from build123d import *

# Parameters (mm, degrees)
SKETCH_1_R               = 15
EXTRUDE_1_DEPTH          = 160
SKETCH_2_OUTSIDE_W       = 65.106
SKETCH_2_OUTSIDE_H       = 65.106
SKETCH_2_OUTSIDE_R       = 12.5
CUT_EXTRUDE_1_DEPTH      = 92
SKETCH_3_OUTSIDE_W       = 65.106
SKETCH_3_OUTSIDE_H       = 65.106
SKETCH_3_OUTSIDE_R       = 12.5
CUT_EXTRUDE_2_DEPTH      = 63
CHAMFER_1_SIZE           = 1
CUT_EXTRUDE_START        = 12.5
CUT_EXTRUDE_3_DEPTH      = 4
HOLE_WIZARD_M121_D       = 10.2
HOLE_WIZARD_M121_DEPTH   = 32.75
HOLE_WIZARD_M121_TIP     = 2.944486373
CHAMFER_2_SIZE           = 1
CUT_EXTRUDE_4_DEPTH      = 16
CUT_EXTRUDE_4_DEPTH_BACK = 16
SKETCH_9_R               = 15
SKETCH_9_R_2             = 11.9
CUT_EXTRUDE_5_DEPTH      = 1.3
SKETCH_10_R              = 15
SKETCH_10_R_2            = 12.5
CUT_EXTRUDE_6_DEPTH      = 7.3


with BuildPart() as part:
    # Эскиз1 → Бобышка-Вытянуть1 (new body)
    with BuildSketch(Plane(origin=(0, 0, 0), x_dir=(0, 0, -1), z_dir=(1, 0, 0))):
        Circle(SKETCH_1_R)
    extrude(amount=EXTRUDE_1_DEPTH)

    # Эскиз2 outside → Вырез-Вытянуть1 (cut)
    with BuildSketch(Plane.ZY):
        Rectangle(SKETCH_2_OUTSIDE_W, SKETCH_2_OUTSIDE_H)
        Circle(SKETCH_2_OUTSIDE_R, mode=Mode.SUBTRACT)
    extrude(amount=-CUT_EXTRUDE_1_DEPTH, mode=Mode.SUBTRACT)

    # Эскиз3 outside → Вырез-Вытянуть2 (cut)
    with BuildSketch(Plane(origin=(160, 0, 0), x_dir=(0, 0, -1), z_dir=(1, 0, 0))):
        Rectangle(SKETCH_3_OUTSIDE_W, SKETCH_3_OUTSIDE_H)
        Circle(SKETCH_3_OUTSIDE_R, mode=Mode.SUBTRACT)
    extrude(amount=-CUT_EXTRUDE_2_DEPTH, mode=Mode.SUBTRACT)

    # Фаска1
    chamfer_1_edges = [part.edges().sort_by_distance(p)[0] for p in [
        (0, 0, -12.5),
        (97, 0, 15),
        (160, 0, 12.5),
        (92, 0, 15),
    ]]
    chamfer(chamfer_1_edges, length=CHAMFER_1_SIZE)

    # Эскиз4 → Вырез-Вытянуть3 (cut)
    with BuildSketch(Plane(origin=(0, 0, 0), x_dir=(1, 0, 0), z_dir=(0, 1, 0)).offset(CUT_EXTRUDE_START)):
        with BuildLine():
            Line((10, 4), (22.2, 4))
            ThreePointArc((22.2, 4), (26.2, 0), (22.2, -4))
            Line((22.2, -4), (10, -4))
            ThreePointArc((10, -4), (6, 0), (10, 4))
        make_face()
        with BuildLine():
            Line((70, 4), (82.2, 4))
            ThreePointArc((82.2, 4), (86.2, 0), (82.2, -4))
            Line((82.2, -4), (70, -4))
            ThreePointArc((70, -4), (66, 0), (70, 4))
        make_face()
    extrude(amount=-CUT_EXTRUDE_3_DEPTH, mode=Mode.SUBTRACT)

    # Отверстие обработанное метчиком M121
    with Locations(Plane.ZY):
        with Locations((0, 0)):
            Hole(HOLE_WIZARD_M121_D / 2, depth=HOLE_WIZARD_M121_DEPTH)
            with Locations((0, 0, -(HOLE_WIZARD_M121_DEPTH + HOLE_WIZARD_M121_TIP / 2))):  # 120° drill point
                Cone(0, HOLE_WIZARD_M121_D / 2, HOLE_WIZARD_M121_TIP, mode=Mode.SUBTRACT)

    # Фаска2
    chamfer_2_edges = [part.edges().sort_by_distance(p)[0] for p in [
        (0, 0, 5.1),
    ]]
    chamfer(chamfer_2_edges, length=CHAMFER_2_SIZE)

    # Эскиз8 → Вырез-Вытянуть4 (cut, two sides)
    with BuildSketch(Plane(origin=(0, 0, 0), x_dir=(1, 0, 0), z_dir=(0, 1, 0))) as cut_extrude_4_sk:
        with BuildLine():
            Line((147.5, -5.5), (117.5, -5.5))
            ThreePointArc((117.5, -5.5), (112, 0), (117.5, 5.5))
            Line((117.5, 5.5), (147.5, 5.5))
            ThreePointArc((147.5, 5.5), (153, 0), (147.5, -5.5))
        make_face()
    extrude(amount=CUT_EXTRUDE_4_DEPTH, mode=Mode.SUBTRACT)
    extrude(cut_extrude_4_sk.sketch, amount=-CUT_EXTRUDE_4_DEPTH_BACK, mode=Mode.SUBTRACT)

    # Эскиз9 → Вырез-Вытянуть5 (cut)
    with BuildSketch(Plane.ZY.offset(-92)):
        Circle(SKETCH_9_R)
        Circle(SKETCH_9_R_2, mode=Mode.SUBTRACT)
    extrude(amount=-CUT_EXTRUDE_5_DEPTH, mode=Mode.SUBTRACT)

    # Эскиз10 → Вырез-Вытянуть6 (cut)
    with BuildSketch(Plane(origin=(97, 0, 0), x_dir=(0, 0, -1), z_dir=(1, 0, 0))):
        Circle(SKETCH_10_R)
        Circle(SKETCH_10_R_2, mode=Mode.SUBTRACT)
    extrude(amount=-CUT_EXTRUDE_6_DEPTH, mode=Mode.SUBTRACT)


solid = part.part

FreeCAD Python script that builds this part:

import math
import FreeCAD as App
import Part
import Sketcher

V = App.Vector


def edges_at(feature, points):
    """Names of the edges that pass closest to the given points."""
    edges = feature.Shape.Edges
    near = lambda p: min(range(len(edges)), key=lambda i: edges[i].distToShape(Part.Vertex(*p))[0])
    return sorted({f"Edge{near(p) + 1}" for p in points})


def add_polygon(sketch, points):
    """Adds a closed chain of lines whose ends are joined by coincident constraints."""
    first, n = sketch.GeometryCount, len(points)
    for a, b in zip(points, points[1:] + points[:1]):
        sketch.addGeometry(Part.LineSegment(App.Vector(*a, 0), App.Vector(*b, 0)), False)
    for i in range(n):
        sketch.addConstraint(Sketcher.Constraint("Coincident", first + i, 2, first + (i + 1) % n, 1))

doc = App.newDocument("Part")
body = doc.addObject("PartDesign::Body", "Body")

# Sketch on YZ plane
sketch1 = body.newObject("Sketcher::SketchObject", "Sketch")
sketch1.AttachmentSupport = (doc.getObject("YZ_Plane"), [""])
sketch1.MapMode = "FlatFace"
sketch1.addGeometry(Part.Circle(V(0, 0, 0), V(0, 0, 1), 15), False)
sketch1.addConstraint([
    Sketcher.Constraint("Coincident", 0, 3, -1, 1),
    Sketcher.Constraint("Diameter", 0, 30.0),
])
pad1 = body.newObject("PartDesign::Pad", "Pad")
pad1.Profile = sketch1
pad1.Length = 160

# Sketch on YZ plane
sketch2 = body.newObject("Sketcher::SketchObject", "Sketch001")
sketch2.AttachmentSupport = (doc.getObject("YZ_Plane"), [""])
sketch2.MapMode = "FlatFace"
add_polygon(sketch2, [(33, -33), (-33, -33), (-33, 33), (33, 33)])  # lines 0-3
sketch2.addGeometry(Part.Circle(V(0, 0, 0), V(0, 0, 1), 12), False)  # 4
sketch2.addConstraint([
    Sketcher.Constraint("Horizontal", 0),
    Sketcher.Constraint("Vertical", 1),
    Sketcher.Constraint("Horizontal", 2),
    Sketcher.Constraint("Vertical", 3),
    Sketcher.Constraint("Coincident", 4, 3, -1, 1),
    Sketcher.Constraint("Symmetric", 0, 2, 2, 2, -1, 1),
    Sketcher.Constraint("Equal", 2, 1),
    Sketcher.Constraint("Diameter", 4, 25.0),
    Sketcher.Constraint("DistanceX", 0, 2, 0, 1, 65.106),
])
pocket1 = body.newObject("PartDesign::Pocket", "Pocket")
pocket1.Profile = sketch2
pocket1.Length = 92
pocket1.Reversed = True

# Sketch on YZ plane
sketch3 = body.newObject("Sketcher::SketchObject", "Sketch002")
sketch3.AttachmentSupport = (doc.getObject("YZ_Plane"), [""])
sketch3.MapMode = "FlatFace"
sketch3.AttachmentOffset = App.Placement(V(0, 0, 160), App.Rotation())
add_polygon(sketch3, [(33, 33), (-33, 33), (-33, -33), (33, -33)])  # lines 0-3
sketch3.addGeometry(Part.Circle(V(0, 0, 0), V(0, 0, 1), 12), False)  # 4
sketch3.addConstraint([
    Sketcher.Constraint("Horizontal", 0),
    Sketcher.Constraint("Vertical", 1),
    Sketcher.Constraint("Horizontal", 2),
    Sketcher.Constraint("Vertical", 3),
    Sketcher.Constraint("Coincident", 4, 3, -1, 1),
    Sketcher.Constraint("Symmetric", 0, 2, 2, 2, -1, 1),
    Sketcher.Constraint("Equal", 2, 1),
    Sketcher.Constraint("Diameter", 4, 25.0),
    Sketcher.Constraint("DistanceX", 0, 2, 0, 1, 65.106),
])
pocket2 = body.newObject("PartDesign::Pocket", "Pocket001")
pocket2.Profile = sketch3
pocket2.Length = 63
doc.recompute()

chamfer = body.newObject("PartDesign::Chamfer", "Chamfer")
chamfer.Base = (pocket2, edges_at(pocket2, [
    (0, 0, -12.5),
    (97, 0, 15),
    (160, 0, 12.5),
    (92, 0, 15),
]))
chamfer.Size = 1

# Sketch on XZ plane
sketch4 = body.newObject("Sketcher::SketchObject", "Sketch003")
sketch4.AttachmentSupport = (doc.getObject("XZ_Plane"), [""])
sketch4.MapMode = "FlatFace"
sketch4.AttachmentOffset = App.Placement(V(0, 0, -12.5), App.Rotation())
sketch4.addGeometry([
    Part.LineSegment(V(22.2, -4, 0), V(10, -4, 0)),  # 0
    Part.ArcOfCircle(Part.Circle(V(10, 0, 0), V(0, 0, 1), 4), math.radians(90), math.radians(270)),  # 1
    Part.LineSegment(V(10, 4, 0), V(22.2, 4, 0)),  # 2
    Part.ArcOfCircle(Part.Circle(V(22.2, 0, 0), V(0, 0, 1), 4), math.radians(-90), math.radians(90)),  # 3
    Part.LineSegment(V(82.2, -4, 0), V(70, -4, 0)),  # 4
    Part.ArcOfCircle(Part.Circle(V(70, 0, 0), V(0, 0, 1), 4), math.radians(90), math.radians(270)),  # 5
    Part.LineSegment(V(70, 4, 0), V(82.2, 4, 0)),  # 6
    Part.ArcOfCircle(Part.Circle(V(82.2, 0, 0), V(0, 0, 1), 4), math.radians(-90), math.radians(90)),  # 7
], False)
sketch4.addConstraint([
    Sketcher.Constraint("Tangent", 0, 2, 1, 2),
    Sketcher.Constraint("Tangent", 1, 1, 2, 1),
    Sketcher.Constraint("Tangent", 2, 2, 3, 2),
    Sketcher.Constraint("Tangent", 3, 1, 0, 1),
    Sketcher.Constraint("Tangent", 4, 2, 5, 2),
    Sketcher.Constraint("Tangent", 5, 1, 6, 1),
    Sketcher.Constraint("Tangent", 6, 2, 7, 2),
    Sketcher.Constraint("Tangent", 7, 1, 4, 1),
    Sketcher.Constraint("Horizontal", 0),
    Sketcher.Constraint("Horizontal", 2),
    Sketcher.Constraint("Horizontal", 4),
    Sketcher.Constraint("Horizontal", 6),
    Sketcher.Constraint("Equal", 3, 5),
    Sketcher.Constraint("PointOnObject", 1, 3, -1),
    Sketcher.Constraint("PointOnObject", 5, 3, -1),
    Sketcher.Constraint("Equal", 2, 4),
    Sketcher.Constraint("Radius", 1, 4.0),
    Sketcher.Constraint("DistanceX", 0, 2, 0, 1, 12.2),
    Sketcher.Constraint("DistanceX", -1, 1, 1, 3, 10.0),
    Sketcher.Constraint("DistanceX", -1, 1, 5, 3, 70.0),
])
pocket3 = body.newObject("PartDesign::Pocket", "Pocket002")
pocket3.Profile = sketch4
pocket3.Length = 4
pocket3.Reversed = True

# Sketch on YZ plane
sketch5 = body.newObject("Sketcher::SketchObject", "Sketch004")
sketch5.AttachmentSupport = (doc.getObject("YZ_Plane"), [""])
sketch5.MapMode = "FlatFace"
sketch5.addGeometry(Part.Circle(V(0, 0, 0), V(0, 0, 1), 5), False)
sketch5.addConstraint([
    Sketcher.Constraint("Coincident", 0, 3, -1, 1),
    Sketcher.Constraint("Diameter", 0, 10.2),
])
doc.recompute()
hole = body.newObject("PartDesign::Hole", "Hole")
hole.Profile = sketch5
hole.ThreadType = "None"
hole.Diameter = 10.2
hole.DepthType = "Dimension"
hole.Depth = 32.75
hole.DrillPoint = "Angled"
hole.DrillPointAngle = 120
hole.Reversed = True
doc.recompute()

chamfer2 = body.newObject("PartDesign::Chamfer", "Chamfer001")
chamfer2.Base = (hole, edges_at(hole, [(0, 0, 5.1)]))
chamfer2.Size = 1

# Sketch on XZ plane
sketch6 = body.newObject("Sketcher::SketchObject", "Sketch005")
sketch6.AttachmentSupport = (doc.getObject("XZ_Plane"), [""])
sketch6.MapMode = "FlatFace"
sketch6.addGeometry([
    Part.LineSegment(V(118, 6, 0), V(148, 6, 0)),
    Part.ArcOfCircle(Part.Circle(V(148, 0, 0), V(0, 0, 1), 6), math.radians(-90), math.radians(90)),
    Part.LineSegment(V(148, -6, 0), V(118, -6, 0)),
    Part.ArcOfCircle(Part.Circle(V(118, 0, 0), V(0, 0, 1), 6), math.radians(90), math.radians(270)),
], False)
sketch6.addConstraint([
    Sketcher.Constraint("Tangent", 0, 2, 1, 2),
    Sketcher.Constraint("Tangent", 1, 1, 2, 1),
    Sketcher.Constraint("Tangent", 2, 2, 3, 2),
    Sketcher.Constraint("Tangent", 3, 1, 0, 1),
    Sketcher.Constraint("Horizontal", 0),
    Sketcher.Constraint("Horizontal", 2),
    Sketcher.Constraint("PointOnObject", 1, 3, -1),
    Sketcher.Constraint("Radius", 1, 5.5),
    Sketcher.Constraint("DistanceX", 0, 1, 0, 2, 30.0),
    Sketcher.Constraint("DistanceX", -1, 1, 1, 3, 147.5),
])
pocket4 = body.newObject("PartDesign::Pocket", "Pocket003")
pocket4.Profile = sketch6
pocket4.Type = "ThroughAll"
pocket4.Midplane = True

# Sketch on YZ plane
sketch7 = body.newObject("Sketcher::SketchObject", "Sketch006")
sketch7.AttachmentSupport = (doc.getObject("YZ_Plane"), [""])
sketch7.MapMode = "FlatFace"
sketch7.AttachmentOffset = App.Placement(V(0, 0, 92), App.Rotation())
sketch7.addGeometry([
    Part.Circle(V(0, 0, 0), V(0, 0, 1), 15),
    Part.Circle(V(0, 0, 0), V(0, 0, 1), 12),
], False)
sketch7.addConstraint([
    Sketcher.Constraint("Coincident", 0, 3, -1, 1),
    Sketcher.Constraint("Coincident", 1, 3, -1, 1),
    Sketcher.Constraint("Diameter", 0, 30.0),
    Sketcher.Constraint("Diameter", 1, 23.8),
])
pocket5 = body.newObject("PartDesign::Pocket", "Pocket004")
pocket5.Profile = sketch7
pocket5.Length = 1.3
pocket5.Reversed = True

# Sketch on YZ plane
sketch8 = body.newObject("Sketcher::SketchObject", "Sketch007")
sketch8.AttachmentSupport = (doc.getObject("YZ_Plane"), [""])
sketch8.MapMode = "FlatFace"
sketch8.AttachmentOffset = App.Placement(V(0, 0, 97), App.Rotation())
sketch8.addGeometry([
    Part.Circle(V(0, 0, 0), V(0, 0, 1), 15),
    Part.Circle(V(0, 0, 0), V(0, 0, 1), 12),
], False)
sketch8.addConstraint([
    Sketcher.Constraint("Coincident", 0, 3, -1, 1),
    Sketcher.Constraint("Coincident", 1, 3, -1, 1),
    Sketcher.Constraint("Diameter", 0, 30.0),
    Sketcher.Constraint("Diameter", 1, 25.0),
])
pocket6 = body.newObject("PartDesign::Pocket", "Pocket005")
pocket6.Profile = sketch8
pocket6.Length = 7.3

doc.recompute()
